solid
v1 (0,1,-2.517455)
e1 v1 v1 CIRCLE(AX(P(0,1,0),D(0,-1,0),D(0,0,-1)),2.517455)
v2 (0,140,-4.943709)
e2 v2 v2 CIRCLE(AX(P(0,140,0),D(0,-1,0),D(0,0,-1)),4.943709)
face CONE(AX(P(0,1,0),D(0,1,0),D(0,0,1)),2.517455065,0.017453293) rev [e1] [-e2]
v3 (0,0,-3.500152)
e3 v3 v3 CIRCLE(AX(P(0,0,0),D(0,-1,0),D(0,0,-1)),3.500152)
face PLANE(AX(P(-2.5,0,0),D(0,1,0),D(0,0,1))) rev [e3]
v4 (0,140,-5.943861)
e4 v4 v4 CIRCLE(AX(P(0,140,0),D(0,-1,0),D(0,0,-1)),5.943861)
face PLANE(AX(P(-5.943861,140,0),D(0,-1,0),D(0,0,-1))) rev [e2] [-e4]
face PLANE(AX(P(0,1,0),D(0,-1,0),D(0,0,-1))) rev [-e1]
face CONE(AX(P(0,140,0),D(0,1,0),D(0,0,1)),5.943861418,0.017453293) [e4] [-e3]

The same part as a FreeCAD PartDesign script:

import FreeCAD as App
import Part
import Sketcher
from FreeCAD import Vector
Q = App.Units.Quantity

doc = App.newDocument("Part")
body = doc.addObject("PartDesign::Body", "Body")

# Sketch on XY plane
sketch1 = body.newObject("Sketcher::SketchObject", "Sketch")
sketch1.AttachmentSupport = (doc.getObject("XY_Plane"), [""])
sketch1.MapMode = "FlatFace"
sketch1.addGeometry([
    Part.LineSegment(Vector(-2.5, 1, 0), Vector(-4.9, 140, 0)),  # 0
    Part.LineSegment(Vector(-4.9, 140, 0), Vector(-5.9, 140, 0)),  # 1
    Part.LineSegment(Vector(-5.9, 140, 0), Vector(-3.5, 0, 0)),  # 2
    Part.LineSegment(Vector(-3.5, 0, 0), Vector(0, 0, 0)),  # 3
    Part.LineSegment(Vector(0, 0, 0), Vector(0, 1, 0)),  # 4
    Part.LineSegment(Vector(0, 1, 0), Vector(-2.5, 1, 0)),  # 5
], False)
sketch1.addConstraint([
    Sketcher.Constraint("Coincident", 0, 2, 1, 1),
    Sketcher.Constraint("Coincident", 1, 2, 2, 1),
    Sketcher.Constraint("Coincident", 2, 2, 3, 1),
    Sketcher.Constraint("Coincident", 3, 2, 4, 1),
    Sketcher.Constraint("Coincident", 4, 2, 5, 1),
    Sketcher.Constraint("Coincident", 5, 2, 0, 1),
    Sketcher.Constraint("Horizontal", 1),
    Sketcher.Constraint("Horizontal", 3),
    Sketcher.Constraint("Vertical", 4),
    Sketcher.Constraint("Horizontal", 5),
    Sketcher.Constraint("Coincident", 3, 2, -1, 1),
    Sketcher.Constraint("Parallel", 0, 2),
    Sketcher.Constraint("DistanceY", 4, 1, 4, 2, 1.0),
    Sketcher.Constraint("Angle", 0, Q("91 deg")),
    Sketcher.Constraint("DistanceY", -1, 1, 0, 2, 140.0),
    Sketcher.Constraint("DistanceX", 1, 2, 1, 1, 1.000152),
    Sketcher.Constraint("DistanceX", 3, 1, 3, 2, 3.500152),
])
revolution = body.newObject("PartDesign::Revolution", "Revolution")
revolution.Profile = sketch1
revolution.ReferenceAxis = (sketch1, ["V_Axis"])
revolution.Angle = 360

doc.recompute()
